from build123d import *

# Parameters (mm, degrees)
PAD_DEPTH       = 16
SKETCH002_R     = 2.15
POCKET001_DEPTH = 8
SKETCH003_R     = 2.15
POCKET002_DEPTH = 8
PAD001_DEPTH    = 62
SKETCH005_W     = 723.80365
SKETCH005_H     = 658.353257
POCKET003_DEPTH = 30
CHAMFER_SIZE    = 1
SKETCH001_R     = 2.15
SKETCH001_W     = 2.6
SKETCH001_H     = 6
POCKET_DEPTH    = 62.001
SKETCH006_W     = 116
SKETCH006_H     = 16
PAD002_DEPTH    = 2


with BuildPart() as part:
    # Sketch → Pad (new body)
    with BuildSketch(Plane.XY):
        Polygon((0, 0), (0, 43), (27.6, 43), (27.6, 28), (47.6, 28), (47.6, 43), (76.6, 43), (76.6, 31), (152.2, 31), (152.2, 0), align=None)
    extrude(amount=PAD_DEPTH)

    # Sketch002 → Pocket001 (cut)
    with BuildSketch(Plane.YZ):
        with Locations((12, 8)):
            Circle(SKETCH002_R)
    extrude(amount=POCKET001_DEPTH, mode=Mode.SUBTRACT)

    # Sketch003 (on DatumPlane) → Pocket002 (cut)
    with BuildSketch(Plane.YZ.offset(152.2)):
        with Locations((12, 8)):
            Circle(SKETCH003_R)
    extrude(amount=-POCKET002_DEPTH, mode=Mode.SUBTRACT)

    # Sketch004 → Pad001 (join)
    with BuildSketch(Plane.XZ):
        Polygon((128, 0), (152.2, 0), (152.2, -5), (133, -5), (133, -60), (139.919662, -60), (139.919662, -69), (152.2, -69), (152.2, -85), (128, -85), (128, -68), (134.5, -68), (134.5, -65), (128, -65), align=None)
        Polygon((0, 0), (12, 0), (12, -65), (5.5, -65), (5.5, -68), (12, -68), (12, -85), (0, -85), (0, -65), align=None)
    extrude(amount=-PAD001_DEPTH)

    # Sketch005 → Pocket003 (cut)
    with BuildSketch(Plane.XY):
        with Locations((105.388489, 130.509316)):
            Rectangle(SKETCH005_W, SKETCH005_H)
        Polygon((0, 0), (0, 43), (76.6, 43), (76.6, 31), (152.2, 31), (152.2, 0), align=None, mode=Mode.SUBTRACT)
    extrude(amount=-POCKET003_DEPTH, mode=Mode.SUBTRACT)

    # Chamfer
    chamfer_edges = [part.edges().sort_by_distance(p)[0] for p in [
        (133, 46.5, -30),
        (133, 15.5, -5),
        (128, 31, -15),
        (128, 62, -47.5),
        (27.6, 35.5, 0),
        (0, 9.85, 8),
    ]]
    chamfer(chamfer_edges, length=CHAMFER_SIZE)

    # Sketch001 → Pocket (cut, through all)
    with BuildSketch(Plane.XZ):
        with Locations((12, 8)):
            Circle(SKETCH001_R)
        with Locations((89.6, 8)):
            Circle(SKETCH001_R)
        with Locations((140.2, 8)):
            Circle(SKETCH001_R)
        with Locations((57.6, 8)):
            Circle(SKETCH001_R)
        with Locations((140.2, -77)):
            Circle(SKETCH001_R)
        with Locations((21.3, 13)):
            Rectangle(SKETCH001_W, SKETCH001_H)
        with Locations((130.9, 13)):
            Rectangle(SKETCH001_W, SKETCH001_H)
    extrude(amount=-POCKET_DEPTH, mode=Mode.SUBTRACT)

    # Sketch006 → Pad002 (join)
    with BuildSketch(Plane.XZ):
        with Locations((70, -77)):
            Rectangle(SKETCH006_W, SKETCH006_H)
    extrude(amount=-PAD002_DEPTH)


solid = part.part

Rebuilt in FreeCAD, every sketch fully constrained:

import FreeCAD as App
import Part
import Sketcher

V = App.Vector
Q = App.Units.Quantity


def edges_at(feature, points):
    """Names of the edges that pass closest to the given points."""
    edges = feature.Shape.Edges
    near = lambda p: min(range(len(edges)), key=lambda i: edges[i].distToShape(Part.Vertex(*p))[0])
    return sorted({f"Edge{near(p) + 1}" for p in points})


def add_polygon(sketch, points):
    """Adds a closed chain of lines whose ends are joined by coincident constraints."""
    first, n = sketch.GeometryCount, len(points)
    for a, b in zip(points, points[1:] + points[:1]):
        sketch.addGeometry(Part.LineSegment(App.Vector(*a, 0), App.Vector(*b, 0)), False)
    for i in range(n):
        sketch.addConstraint(Sketcher.Constraint("Coincident", first + i, 2, first + (i + 1) % n, 1))

doc = App.newDocument("Part")
body = doc.addObject("PartDesign::Body", "Body")

# Sketch on XY plane
sketch1 = body.newObject("Sketcher::SketchObject", "Sketch")
sketch1.AttachmentSupport = (doc.getObject("XY_Plane"), [""])
sketch1.MapMode = "FlatFace"
add_polygon(sketch1, [(0, 43), (0, 0), (152, 0), (152, 31), (77, 31), (77, 43), (48, 43), (48, 28), (28, 28), (28, 43)])  # lines 0-9
sketch1.addConstraint(Sketcher.Constraint("Vertical", 0))
sketch1.addConstraint(Sketcher.Constraint("Horizontal", 1))
sketch1.addConstraint(Sketcher.Constraint("Vertical", 2))
sketch1.addConstraint(Sketcher.Constraint("Horizontal", 3))
sketch1.addConstraint(Sketcher.Constraint("Vertical", 4))
sketch1.addConstraint(Sketcher.Constraint("Horizontal", 5))
sketch1.addConstraint(Sketcher.Constraint("Vertical", 6))
sketch1.addConstraint(Sketcher.Constraint("Horizontal", 7))
sketch1.addConstraint(Sketcher.Constraint("Vertical", 8))
sketch1.addConstraint(Sketcher.Constraint("Horizontal", 9))
sketch1.addConstraint(Sketcher.Constraint("Coincident", 0, 2, -1, 1))
sketch1.addConstraint(Sketcher.Constraint("Horizontal", 5, 2, 8, 2))
sketch1.addConstraint(Sketcher.Constraint("DistanceX", 5, 2, 5, 1, Q("29 mm")))
sketch1.addConstraint(Sketcher.Constraint("DistanceX", 7, 2, 7, 1, Q("20 mm")))
sketch1.addConstraint(Sketcher.Constraint("DistanceY", 0, 2, 0, 1, Q("43 mm")))
sketch1.addConstraint(Sketcher.Constraint("DistanceY", 2, 1, 2, 2, Q("31 mm")))
sketch1.addConstraint(Sketcher.Constraint("DistanceY", 6, 2, 6, 1, Q("15 mm")))
sketch1.addConstraint(Sketcher.Constraint("DistanceX", 1, 1, 1, 2, Q("152.2 mm")))
sketch1.addConstraint(Sketcher.Constraint("DistanceX", 3, 2, 3, 1, Q("75.6 mm")))
pad1 = body.newObject("PartDesign::Pad", "Pad")
pad1.Profile = sketch1
pad1.Length = 16

# Sketch on YZ plane
sketch2 = body.newObject("Sketcher::SketchObject", "Sketch001")
sketch2.AttachmentSupport = (doc.getObject("YZ_Plane"), [""])
sketch2.MapMode = "FlatFace"
sketch2.addGeometry(Part.Circle(V(12, 8, 0), V(0, 0, 1), 2.1), False)
sketch2.addConstraint(Sketcher.Constraint("Diameter", 0, Q("4.3 mm")))
sketch2.addConstraint(Sketcher.Constraint("DistanceX", -1, 1, 0, 3, Q("12 mm")))
sketch2.addConstraint(Sketcher.Constraint("DistanceY", -1, 1, 0, 3, Q("8 mm")))
pocket1 = body.newObject("PartDesign::Pocket", "Pocket")
pocket1.Profile = sketch2
pocket1.Length = 8
pocket1.Reversed = True

# Sketch on YZ plane
sketch3 = body.newObject("Sketcher::SketchObject", "Sketch002")
sketch3.AttachmentSupport = (doc.getObject("YZ_Plane"), [""])
sketch3.MapMode = "FlatFace"
sketch3.AttachmentOffset = App.Placement(V(0, 0, 152.2), App.Rotation())
sketch3.addGeometry(Part.Circle(V(12, 8, 0), V(0, 0, 1), 2.1), False)
sketch3.addConstraint(Sketcher.Constraint("Diameter", 0, Q("4.3 mm")))
sketch3.addConstraint(Sketcher.Constraint("DistanceX", -1, 1, 0, 3, Q("12 mm")))
sketch3.addConstraint(Sketcher.Constraint("DistanceY", -1, 1, 0, 3, Q("8 mm")))
pocket2 = body.newObject("PartDesign::Pocket", "Pocket001")
pocket2.Profile = sketch3
pocket2.Length = 8

# Sketch on XZ plane
sketch4 = body.newObject("Sketcher::SketchObject", "Sketch003")
sketch4.AttachmentSupport = (doc.getObject("XZ_Plane"), [""])
sketch4.MapMode = "FlatFace"
add_polygon(sketch4, [(152.2, 0), (128, 0), (128, -65), (134.5, -65), (134.5, -68), (128, -68), (128, -85), (152.2, -85), (152.2, -69), (139.9, -69), (139.9, -60), (133, -60), (133, -5), (152.2, -5)])  # lines 0-13
add_polygon(sketch4, [(12, 0), (0, 0), (0, -85), (12, -85), (12, -68), (5.5, -68), (5.5, -65), (12, -65)])  # lines 14-21
sketch4.addConstraint(Sketcher.Constraint("Horizontal", 0))
sketch4.addConstraint(Sketcher.Constraint("Vertical", 1))
sketch4.addConstraint(Sketcher.Constraint("Horizontal", 2))
sketch4.addConstraint(Sketcher.Constraint("Vertical", 3))
sketch4.addConstraint(Sketcher.Constraint("Horizontal", 4))
sketch4.addConstraint(Sketcher.Constraint("Vertical", 5))
sketch4.addConstraint(Sketcher.Constraint("Horizontal", 6))
sketch4.addConstraint(Sketcher.Constraint("Vertical", 7))
sketch4.addConstraint(Sketcher.Constraint("Horizontal", 8))
sketch4.addConstraint(Sketcher.Constraint("Vertical", 9))
sketch4.addConstraint(Sketcher.Constraint("Horizontal", 10))
sketch4.addConstraint(Sketcher.Constraint("Vertical", 11))
sketch4.addConstraint(Sketcher.Constraint("Horizontal", 12))
sketch4.addConstraint(Sketcher.Constraint("Vertical", 13))
sketch4.addConstraint(Sketcher.Constraint("Horizontal", 14))
sketch4.addConstraint(Sketcher.Constraint("Vertical", 15))
sketch4.addConstraint(Sketcher.Constraint("Horizontal", 16))
sketch4.addConstraint(Sketcher.Constraint("Vertical", 17))
sketch4.addConstraint(Sketcher.Constraint("Horizontal", 18))
sketch4.addConstraint(Sketcher.Constraint("Vertical", 19))
sketch4.addConstraint(Sketcher.Constraint("Horizontal", 20))
sketch4.addConstraint(Sketcher.Constraint("Vertical", 21))
sketch4.addConstraint(Sketcher.Constraint("Coincident", 14, 2, -1, 1))
sketch4.addConstraint(Sketcher.Constraint("PointOnObject", 0, 2, -1))
sketch4.addConstraint(Sketcher.Constraint("Horizontal", 6, 2, 15, 2))
sketch4.addConstraint(Sketcher.Constraint("Horizontal", 4, 2, 17, 2))
sketch4.addConstraint(Sketcher.Constraint("Horizontal", 2, 2, 19, 2))
sketch4.addConstraint(Sketcher.Constraint("Vertical", 1, 2, 4, 2))
sketch4.addConstraint(Sketcher.Constraint("Vertical", 7, 2, 12, 2))
sketch4.addConstraint(Sketcher.Constraint("Vertical", 17, 2, 20, 2))
sketch4.addConstraint(Sketcher.Constraint("Equal", 4, 18))
sketch4.addConstraint(Sketcher.Constraint("DistanceX", 14, 2, 14, 1, Q("12 mm")))
sketch4.addConstraint(Sketcher.Constraint("DistanceY", 1, 2, 1, 1, Q("65 mm")))
sketch4.addConstraint(Sketcher.Constraint("DistanceY", 3, 2, 3, 1, Q("3 mm")))
sketch4.addConstraint(Sketcher.Constraint("DistanceY", 5, 2, 5, 1, Q("17 mm")))
sketch4.addConstraint(Sketcher.Constraint("DistanceY", 7, 1, 7, 2, Q("16 mm")))
sketch4.addConstraint(Sketcher.Constraint("DistanceY", 9, 1, 9, 2, Q("9 mm")))
sketch4.addConstraint(Sketcher.Constraint("DistanceY", 11, 1, 11, 2, Q("55 mm")))
sketch4.addConstraint(Sketcher.Constraint("DistanceX", 0, 2, 0, 1, Q("24.2 mm")))
sketch4.addConstraint(Sketcher.Constraint("DistanceX", 2, 1, 2, 2, Q("6.5 mm")))
sketch4.addConstraint(Sketcher.Constraint("DistanceX", 12, 1, 12, 2, Q("19.2 mm")))
sketch4.addConstraint(Sketcher.Constraint("DistanceX", -1, 1, 0, 2, Q("128 mm")))
sketch4.addConstraint(Sketcher.Constraint("DistanceX", 10, 2, 10, 1, Q("6.919662 mm")))
pad2 = body.newObject("PartDesign::Pad", "Pad001")
pad2.Profile = sketch4
pad2.Length = 62
pad2.Reversed = True

# Sketch on XY plane
sketch5 = body.newObject("Sketcher::SketchObject", "Sketch004")
sketch5.AttachmentSupport = (doc.getObject("XY_Plane"), [""])
sketch5.MapMode = "FlatFace"
add_polygon(sketch5, [(-257, 460), (-257, -199), (467, -199), (467, 460)])  # lines 0-3
add_polygon(sketch5, [(152, 0), (0, 0), (0, 43), (77, 43), (77, 31), (152, 31)])  # lines 4-9
sketch5.addConstraint(Sketcher.Constraint("Vertical", 0))
sketch5.addConstraint(Sketcher.Constraint("Horizontal", 1))
sketch5.addConstraint(Sketcher.Constraint("Vertical", 2))
sketch5.addConstraint(Sketcher.Constraint("Horizontal", 3))
sketch5.addConstraint(Sketcher.Constraint("Horizontal", 4))
sketch5.addConstraint(Sketcher.Constraint("Vertical", 5))
sketch5.addConstraint(Sketcher.Constraint("Horizontal", 6))
sketch5.addConstraint(Sketcher.Constraint("Vertical", 7))
sketch5.addConstraint(Sketcher.Constraint("Horizontal", 8))
sketch5.addConstraint(Sketcher.Constraint("Vertical", 9))
sketch5.addConstraint(Sketcher.Constraint("Coincident", 4, 2, -1, 1))
sketch5.addConstraint(Sketcher.Constraint("DistanceY", 5, 1, 5, 2, Q("43 mm")))
sketch5.addConstraint(Sketcher.Constraint("DistanceY", 7, 2, 7, 1, Q("12 mm")))
sketch5.addConstraint(Sketcher.Constraint("DistanceX", 4, 2, 4, 1, Q("152.2 mm")))
sketch5.addConstraint(Sketcher.Constraint("DistanceX", 6, 1, 6, 2, Q("76.6 mm")))
sketch5.addConstraint(Sketcher.Constraint("DistanceX", 1, 1, 1, 2, Q("723.80365 mm")))
sketch5.addConstraint(Sketcher.Constraint("DistanceY", 0, 2, 0, 1, Q("658.353257 mm")))
sketch5.addConstraint(Sketcher.Constraint("DistanceX", 0, 2, -1, 1, Q("256.513336 mm")))
sketch5.addConstraint(Sketcher.Constraint("DistanceY", 0, 2, -1, 1, Q("198.667313 mm")))
pocket3 = body.newObject("PartDesign::Pocket", "Pocket002")
pocket3.Profile = sketch5
pocket3.Length = 30
doc.recompute()

chamfer = body.newObject("PartDesign::Chamfer", "Chamfer")
chamfer.Base = (pocket3, edges_at(pocket3, [
    (133, 46.5, -30),
    (133, 15.5, -5),
    (128, 31, -15),
    (128, 62, -47.5),
    (27.6, 35.5, 0),
    (0, 9.85, 8),
]))
chamfer.Size = 1

# Sketch on XZ plane
sketch6 = body.newObject("Sketcher::SketchObject", "Sketch005")
sketch6.AttachmentSupport = (doc.getObject("XZ_Plane"), [""])
sketch6.MapMode = "FlatFace"
sketch6.addGeometry(Part.Circle(V(12, 8, 0), V(0, 0, 1), 2.1), False)  # 0
sketch6.addGeometry(Part.Circle(V(89.6, 8, 0), V(0, 0, 1), 2.1), False)  # 1
sketch6.addGeometry(Part.Circle(V(140.2, 8, 0), V(0, 0, 1), 2.1), False)  # 2
sketch6.addGeometry(Part.Circle(V(57.6, 8, 0), V(0, 0, 1), 2.1), False)  # 3
sketch6.addGeometry(Part.Circle(V(140.2, -77, 0), V(0, 0, 1), 2.1), False)  # 4
add_polygon(sketch6, [(20, 16), (20, 10), (22.6, 10), (22.6, 16)])  # lines 5-8
add_polygon(sketch6, [(129.6, 16), (129.6, 10), (132.2, 10), (132.2, 16)])  # lines 9-12
sketch6.addConstraint(Sketcher.Constraint("Vertical", 5))
sketch6.addConstraint(Sketcher.Constraint("Horizontal", 6))
sketch6.addConstraint(Sketcher.Constraint("Vertical", 7))
sketch6.addConstraint(Sketcher.Constraint("Horizontal", 8))
sketch6.addConstraint(Sketcher.Constraint("Vertical", 9))
sketch6.addConstraint(Sketcher.Constraint("Horizontal", 10))
sketch6.addConstraint(Sketcher.Constraint("Vertical", 11))
sketch6.addConstraint(Sketcher.Constraint("Horizontal", 12))
sketch6.addConstraint(Sketcher.Constraint("Equal", 0, 1))
sketch6.addConstraint(Sketcher.Constraint("Equal", 1, 2))
sketch6.addConstraint(Sketcher.Constraint("Equal", 2, 3))
sketch6.addConstraint(Sketcher.Constraint("Equal", 3, 4))
sketch6.addConstraint(Sketcher.Constraint("Horizontal", 0, 3, 1, 3))
sketch6.addConstraint(Sketcher.Constraint("Horizontal", 1, 3, 2, 3))
sketch6.addConstraint(Sketcher.Constraint("Horizontal", 2, 3, 3, 3))
sketch6.addConstraint(Sketcher.Constraint("Horizontal", 6, 2, 9, 2))
sketch6.addConstraint(Sketcher.Constraint("Horizontal", 8, 2, 11, 2))
sketch6.addConstraint(Sketcher.Constraint("Vertical", 2, 3, 4, 3))
sketch6.addConstraint(Sketcher.Constraint("Equal", 8, 10))
sketch6.addConstraint(Sketcher.Constraint("Diameter", 0, Q("4.3 mm")))
sketch6.addConstraint(Sketcher.Constraint("DistanceY", 5, 2, 5, 1, Q("6 mm")))
sketch6.addConstraint(Sketcher.Constraint("DistanceX", 6, 1, 6, 2, Q("2.6 mm")))
sketch6.addConstraint(Sketcher.Constraint("DistanceX", -1, 1, 0, 3, Q("12 mm")))
sketch6.addConstraint(Sketcher.Constraint("DistanceY", -1, 1, 0, 3, Q("8 mm")))
sketch6.addConstraint(Sketcher.Constraint("DistanceY", 4, 3, -1, 1, Q("77 mm")))
sketch6.addConstraint(Sketcher.Constraint("DistanceX", -1, 1, 5, 2, Q("20 mm")))
sketch6.addConstraint(Sketcher.Constraint("DistanceY", -1, 1, 5, 2, Q("10 mm")))
sketch6.addConstraint(Sketcher.Constraint("DistanceX", 3, 3, 1, 3, Q("32 mm")))
sketch6.addConstraint(Sketcher.Constraint("DistanceX", 6, 2, 3, 3, Q("35 mm")))
sketch6.addConstraint(Sketcher.Constraint("DistanceX", 1, 3, 9, 2, Q("40 mm")))
sketch6.addConstraint(Sketcher.Constraint("DistanceX", 10, 2, 2, 3, Q("8 mm")))
pocket4 = body.newObject("PartDesign::Pocket", "Pocket003")
pocket4.Profile = sketch6
pocket4.Type = "ThroughAll"

# Sketch on XZ plane
sketch7 = body.newObject("Sketcher::SketchObject", "Sketch006")
sketch7.AttachmentSupport = (doc.getObject("XZ_Plane"), [""])
sketch7.MapMode = "FlatFace"
add_polygon(sketch7, [(12, -69), (12, -85), (128, -85), (128, -69)])  # lines 0-3
sketch7.addConstraint(Sketcher.Constraint("Vertical", 0))
sketch7.addConstraint(Sketcher.Constraint("Horizontal", 1))
sketch7.addConstraint(Sketcher.Constraint("Vertical", 2))
sketch7.addConstraint(Sketcher.Constraint("Horizontal", 3))
sketch7.addConstraint(Sketcher.Constraint("DistanceX", 1, 1, 1, 2, Q("116 mm")))
sketch7.addConstraint(Sketcher.Constraint("DistanceY", 0, 2, 0, 1, Q("16 mm")))
sketch7.addConstraint(Sketcher.Constraint("DistanceX", -1, 1, 0, 2, Q("12 mm")))
sketch7.addConstraint(Sketcher.Constraint("DistanceY", 0, 2, -1, 1, Q("85 mm")))
pad3 = body.newObject("PartDesign::Pad", "Pad002")
pad3.Profile = sketch7
pad3.Length = 2
pad3.Reversed = True

doc.recompute()
